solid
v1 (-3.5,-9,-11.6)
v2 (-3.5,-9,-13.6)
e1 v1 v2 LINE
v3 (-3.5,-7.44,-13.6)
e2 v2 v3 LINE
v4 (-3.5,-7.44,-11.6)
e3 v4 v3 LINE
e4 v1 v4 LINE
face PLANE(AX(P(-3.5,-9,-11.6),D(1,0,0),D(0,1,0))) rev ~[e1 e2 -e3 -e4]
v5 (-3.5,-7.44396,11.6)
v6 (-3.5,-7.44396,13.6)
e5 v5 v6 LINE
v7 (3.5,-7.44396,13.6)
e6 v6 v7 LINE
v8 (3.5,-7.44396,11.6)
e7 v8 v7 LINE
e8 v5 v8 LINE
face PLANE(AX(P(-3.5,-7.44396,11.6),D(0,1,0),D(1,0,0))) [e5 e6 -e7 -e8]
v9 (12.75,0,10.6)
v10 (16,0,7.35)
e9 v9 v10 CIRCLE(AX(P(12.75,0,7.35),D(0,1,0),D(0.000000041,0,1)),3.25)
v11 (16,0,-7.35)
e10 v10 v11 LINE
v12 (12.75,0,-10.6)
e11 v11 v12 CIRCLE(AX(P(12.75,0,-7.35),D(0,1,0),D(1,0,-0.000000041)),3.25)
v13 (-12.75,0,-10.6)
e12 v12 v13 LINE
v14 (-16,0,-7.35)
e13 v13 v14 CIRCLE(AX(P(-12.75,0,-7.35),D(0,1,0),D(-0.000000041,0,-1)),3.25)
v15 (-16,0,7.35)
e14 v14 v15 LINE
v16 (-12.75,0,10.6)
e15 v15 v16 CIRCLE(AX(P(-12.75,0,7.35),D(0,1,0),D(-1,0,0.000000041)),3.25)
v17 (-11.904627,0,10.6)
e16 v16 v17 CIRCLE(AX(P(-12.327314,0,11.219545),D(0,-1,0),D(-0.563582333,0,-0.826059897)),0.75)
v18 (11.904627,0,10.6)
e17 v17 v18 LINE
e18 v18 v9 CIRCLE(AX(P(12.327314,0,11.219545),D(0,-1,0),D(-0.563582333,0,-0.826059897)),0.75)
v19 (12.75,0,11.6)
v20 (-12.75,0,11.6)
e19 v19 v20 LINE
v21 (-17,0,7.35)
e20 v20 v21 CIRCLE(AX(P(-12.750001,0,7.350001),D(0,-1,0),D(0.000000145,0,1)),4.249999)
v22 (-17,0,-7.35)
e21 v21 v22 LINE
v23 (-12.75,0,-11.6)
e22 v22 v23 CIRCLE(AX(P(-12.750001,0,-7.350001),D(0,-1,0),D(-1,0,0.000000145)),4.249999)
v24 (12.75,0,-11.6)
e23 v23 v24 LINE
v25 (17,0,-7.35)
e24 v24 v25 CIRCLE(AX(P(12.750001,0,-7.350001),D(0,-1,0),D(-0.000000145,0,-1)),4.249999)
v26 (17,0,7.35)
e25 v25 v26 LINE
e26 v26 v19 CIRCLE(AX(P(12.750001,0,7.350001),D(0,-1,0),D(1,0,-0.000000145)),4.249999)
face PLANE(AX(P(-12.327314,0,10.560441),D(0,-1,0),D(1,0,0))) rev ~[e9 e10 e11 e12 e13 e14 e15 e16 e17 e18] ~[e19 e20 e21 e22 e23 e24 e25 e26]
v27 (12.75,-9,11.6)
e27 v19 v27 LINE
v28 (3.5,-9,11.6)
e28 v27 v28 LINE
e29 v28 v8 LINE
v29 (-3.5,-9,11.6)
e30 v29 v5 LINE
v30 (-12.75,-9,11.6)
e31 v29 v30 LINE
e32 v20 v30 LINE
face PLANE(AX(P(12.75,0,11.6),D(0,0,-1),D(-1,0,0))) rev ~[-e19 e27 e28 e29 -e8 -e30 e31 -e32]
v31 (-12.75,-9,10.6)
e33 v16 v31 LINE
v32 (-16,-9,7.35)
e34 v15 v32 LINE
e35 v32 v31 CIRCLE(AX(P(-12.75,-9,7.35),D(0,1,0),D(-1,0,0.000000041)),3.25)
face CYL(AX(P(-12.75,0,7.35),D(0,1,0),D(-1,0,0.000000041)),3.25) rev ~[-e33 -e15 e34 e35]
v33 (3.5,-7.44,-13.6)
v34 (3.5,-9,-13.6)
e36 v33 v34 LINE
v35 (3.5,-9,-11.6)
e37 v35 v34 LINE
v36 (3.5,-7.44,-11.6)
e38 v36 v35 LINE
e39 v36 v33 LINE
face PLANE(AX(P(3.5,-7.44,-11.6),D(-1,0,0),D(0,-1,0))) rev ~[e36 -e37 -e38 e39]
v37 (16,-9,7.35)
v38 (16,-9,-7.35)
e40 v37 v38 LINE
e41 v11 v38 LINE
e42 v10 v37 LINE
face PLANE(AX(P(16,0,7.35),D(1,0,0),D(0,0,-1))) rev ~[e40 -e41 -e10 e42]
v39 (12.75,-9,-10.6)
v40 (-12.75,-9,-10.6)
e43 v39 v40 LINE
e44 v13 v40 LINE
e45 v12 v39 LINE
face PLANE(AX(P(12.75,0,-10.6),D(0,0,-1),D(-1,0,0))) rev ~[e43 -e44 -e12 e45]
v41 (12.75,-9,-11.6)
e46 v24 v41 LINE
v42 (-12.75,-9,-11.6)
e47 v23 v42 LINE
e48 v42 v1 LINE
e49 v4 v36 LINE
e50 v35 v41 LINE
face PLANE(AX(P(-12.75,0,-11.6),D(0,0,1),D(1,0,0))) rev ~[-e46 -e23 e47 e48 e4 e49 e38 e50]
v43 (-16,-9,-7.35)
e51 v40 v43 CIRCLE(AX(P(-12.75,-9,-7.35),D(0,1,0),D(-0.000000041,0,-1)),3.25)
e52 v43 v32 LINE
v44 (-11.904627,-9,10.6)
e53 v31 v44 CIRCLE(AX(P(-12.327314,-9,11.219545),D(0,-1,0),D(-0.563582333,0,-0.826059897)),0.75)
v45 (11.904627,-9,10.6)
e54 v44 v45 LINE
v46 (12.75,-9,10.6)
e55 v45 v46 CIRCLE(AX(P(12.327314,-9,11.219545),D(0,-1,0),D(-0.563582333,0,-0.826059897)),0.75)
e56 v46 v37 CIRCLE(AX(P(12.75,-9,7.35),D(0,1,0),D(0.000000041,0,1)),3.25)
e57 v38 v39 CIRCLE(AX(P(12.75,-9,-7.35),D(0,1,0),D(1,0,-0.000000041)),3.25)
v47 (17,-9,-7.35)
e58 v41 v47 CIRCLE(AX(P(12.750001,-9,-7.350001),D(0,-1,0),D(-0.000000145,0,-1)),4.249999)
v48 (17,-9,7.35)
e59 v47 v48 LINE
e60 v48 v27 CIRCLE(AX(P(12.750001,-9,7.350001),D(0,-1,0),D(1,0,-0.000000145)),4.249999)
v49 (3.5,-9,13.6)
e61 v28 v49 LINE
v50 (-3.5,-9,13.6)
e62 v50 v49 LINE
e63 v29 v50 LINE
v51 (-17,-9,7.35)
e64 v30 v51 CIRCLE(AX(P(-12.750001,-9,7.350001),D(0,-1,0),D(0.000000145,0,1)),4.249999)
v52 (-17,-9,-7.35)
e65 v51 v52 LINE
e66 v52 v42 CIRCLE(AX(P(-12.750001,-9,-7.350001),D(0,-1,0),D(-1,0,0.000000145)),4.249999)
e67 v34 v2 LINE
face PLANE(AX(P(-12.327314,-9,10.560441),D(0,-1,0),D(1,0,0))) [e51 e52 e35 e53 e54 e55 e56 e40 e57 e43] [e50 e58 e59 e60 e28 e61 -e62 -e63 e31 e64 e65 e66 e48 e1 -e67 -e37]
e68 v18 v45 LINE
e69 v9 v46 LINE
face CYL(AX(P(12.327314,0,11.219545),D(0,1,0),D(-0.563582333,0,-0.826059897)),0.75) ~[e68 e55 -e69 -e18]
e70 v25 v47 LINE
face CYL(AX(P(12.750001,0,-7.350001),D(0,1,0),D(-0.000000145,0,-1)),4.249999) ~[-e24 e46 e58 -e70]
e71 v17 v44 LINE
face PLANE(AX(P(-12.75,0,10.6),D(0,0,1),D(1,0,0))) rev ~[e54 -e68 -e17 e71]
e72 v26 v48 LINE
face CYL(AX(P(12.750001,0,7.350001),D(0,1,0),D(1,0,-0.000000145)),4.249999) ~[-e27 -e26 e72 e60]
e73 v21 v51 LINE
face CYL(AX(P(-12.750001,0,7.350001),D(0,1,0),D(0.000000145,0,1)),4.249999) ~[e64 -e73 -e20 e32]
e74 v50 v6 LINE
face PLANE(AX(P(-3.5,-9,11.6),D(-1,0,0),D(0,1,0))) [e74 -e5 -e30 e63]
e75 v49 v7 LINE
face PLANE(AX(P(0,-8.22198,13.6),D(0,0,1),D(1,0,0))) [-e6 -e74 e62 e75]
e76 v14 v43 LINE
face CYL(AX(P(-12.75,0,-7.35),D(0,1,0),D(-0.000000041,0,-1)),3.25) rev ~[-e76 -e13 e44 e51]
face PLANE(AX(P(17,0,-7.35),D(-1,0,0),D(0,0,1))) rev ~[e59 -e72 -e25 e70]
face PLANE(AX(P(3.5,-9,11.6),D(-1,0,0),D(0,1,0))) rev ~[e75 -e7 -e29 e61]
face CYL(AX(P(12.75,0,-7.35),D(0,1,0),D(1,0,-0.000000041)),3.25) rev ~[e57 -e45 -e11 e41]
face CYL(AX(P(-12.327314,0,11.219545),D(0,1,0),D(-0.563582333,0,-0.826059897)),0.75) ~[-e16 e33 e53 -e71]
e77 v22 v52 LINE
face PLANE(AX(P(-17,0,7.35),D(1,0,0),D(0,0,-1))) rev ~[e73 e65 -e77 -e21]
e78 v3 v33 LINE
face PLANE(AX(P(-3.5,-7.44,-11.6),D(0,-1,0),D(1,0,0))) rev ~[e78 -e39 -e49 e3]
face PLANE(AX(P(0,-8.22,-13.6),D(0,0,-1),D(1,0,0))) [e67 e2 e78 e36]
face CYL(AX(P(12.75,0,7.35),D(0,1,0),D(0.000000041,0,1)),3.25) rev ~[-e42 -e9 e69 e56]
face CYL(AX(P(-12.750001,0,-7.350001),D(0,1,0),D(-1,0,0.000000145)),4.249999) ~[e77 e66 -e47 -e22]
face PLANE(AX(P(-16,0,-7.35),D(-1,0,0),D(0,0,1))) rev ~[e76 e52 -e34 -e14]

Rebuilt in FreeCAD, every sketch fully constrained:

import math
import FreeCAD as App
import Part
import Sketcher

V = App.Vector
Q = App.Units.Quantity


def add_polygon(sketch, points):
    """Adds a closed chain of lines whose ends are joined by coincident constraints."""
    first, n = sketch.GeometryCount, len(points)
    for a, b in zip(points, points[1:] + points[:1]):
        sketch.addGeometry(Part.LineSegment(App.Vector(*a, 0), App.Vector(*b, 0)), False)
    for i in range(n):
        sketch.addConstraint(Sketcher.Constraint("Coincident", first + i, 2, first + (i + 1) % n, 1))

doc = App.newDocument("Part")
body = doc.addObject("PartDesign::Body", "Body")

# Sketch on XZ plane
sketch1 = body.newObject("Sketcher::SketchObject", "Sketch")
sketch1.AttachmentSupport = (doc.getObject("XZ_Plane"), [""])
sketch1.MapMode = "FlatFace"
sketch1.addGeometry([
    Part.LineSegment(V(17, -7.35, 0), V(17, 7.35, 0)),  # 0
    Part.ArcOfCircle(Part.Circle(V(12.750001, 7.350001, 0), V(0, 0, 1), 4.249999), math.radians(-0.000008), math.radians(90.000008)),  # 1
    Part.LineSegment(V(12.75, 11.6, 0), V(-12.75, 11.6, 0)),  # 2
    Part.ArcOfCircle(Part.Circle(V(-12.750001, 7.350001, 0), V(0, 0, 1), 4.249999), math.radians(89.999992), math.radians(180.000008)),  # 3
    Part.LineSegment(V(-17, 7.35, 0), V(-17, -7.35, 0)),  # 4
    Part.ArcOfCircle(Part.Circle(V(-12.750001, -7.350001, 0), V(0, 0, 1), 4.249999), math.radians(179.999992), math.radians(270.000008)),  # 5
    Part.LineSegment(V(-12.75, -11.6, 0), V(12.75, -11.6, 0)),  # 6
    Part.ArcOfCircle(Part.Circle(V(12.750001, -7.350001, 0), V(0, 0, 1), 4.249999), math.radians(-90.000008), math.radians(0.000008)),  # 7
    Part.LineSegment(V(16, 7.35, 0), V(16, -7.35, 0)),  # 8
    Part.ArcOfCircle(Part.Circle(V(12.75, -7.35, 0), V(0, 0, 1), 3.25), math.radians(-89.999998), math.radians(-0.000002)),  # 9
    Part.LineSegment(V(12.75, -10.6, 0), V(-12.75, -10.6, 0)),  # 10
    Part.ArcOfCircle(Part.Circle(V(-12.75, -7.35, 0), V(0, 0, 1), 3.25), math.radians(-179.999998), math.radians(-90.000002)),  # 11
    Part.LineSegment(V(-16, -7.35, 0), V(-16, 7.35, 0)),  # 12
    Part.ArcOfCircle(Part.Circle(V(-12.75, 7.35, 0), V(0, 0, 1), 3.25), math.radians(90.000002), math.radians(179.999998)),  # 13
    Part.LineSegment(V(-12.75, 10.6, 0), V(12.75, 10.6, 0)),  # 14
    Part.ArcOfCircle(Part.Circle(V(12.75, 7.35, 0), V(0, 0, 1), 3.25), math.radians(0.000002), math.radians(89.999998)),  # 15
], False)
sketch1.addConstraint([
    Sketcher.Constraint("Tangent", 0, 2, 1, 1),
    Sketcher.Constraint("Tangent", 1, 2, 2, 1),
    Sketcher.Constraint("Tangent", 2, 2, 3, 1),
    Sketcher.Constraint("Tangent", 3, 2, 4, 1),
    Sketcher.Constraint("Tangent", 4, 2, 5, 1),
    Sketcher.Constraint("Tangent", 5, 2, 6, 1),
    Sketcher.Constraint("Tangent", 6, 2, 7, 1),
    Sketcher.Constraint("Tangent", 7, 2, 0, 1),
    Sketcher.Constraint("Tangent", 8, 2, 9, 2),
    Sketcher.Constraint("Tangent", 9, 1, 10, 1),
    Sketcher.Constraint("Tangent", 10, 2, 11, 2),
    Sketcher.Constraint("Tangent", 11, 1, 12, 1),
    Sketcher.Constraint("Tangent", 12, 2, 13, 2),
    Sketcher.Constraint("Tangent", 13, 1, 14, 1),
    Sketcher.Constraint("Tangent", 14, 2, 15, 2),
    Sketcher.Constraint("Tangent", 15, 1, 8, 1),
    Sketcher.Constraint("Vertical", 0),
    Sketcher.Constraint("Horizontal", 2),
    Sketcher.Constraint("Vertical", 4),
    Sketcher.Constraint("Horizontal", 6),
    Sketcher.Constraint("Vertical", 8),
    Sketcher.Constraint("Horizontal", 10),
    Sketcher.Constraint("Vertical", 12),
    Sketcher.Constraint("Horizontal", 14),
    Sketcher.Constraint("Coincident", 9, 3, 7, 3),
    Sketcher.Constraint("Coincident", 11, 3, 5, 3),
    Sketcher.Constraint("Coincident", 13, 3, 3, 3),
    Sketcher.Constraint("Equal", 1, 3),
    Sketcher.Constraint("Equal", 3, 5),
    Sketcher.Constraint("Equal", 5, 7),
    Sketcher.Constraint("Equal", 13, 15),
    Sketcher.Constraint("Symmetric", 1, 3, 5, 3, -1, 1),
    Sketcher.Constraint("Radius", 1, Q("4.249999 mm")),
    Sketcher.Constraint("Radius", 9, Q("3.25 mm")),
    Sketcher.Constraint("DistanceX", 2, 2, 2, 1, Q("25.5 mm")),
    Sketcher.Constraint("DistanceY", 0, 1, 0, 2, Q("14.7 mm")),
])
pad1 = body.newObject("PartDesign::Pad", "Pad")
pad1.Profile = sketch1
pad1.Length = 9

# Sketch on XY plane
sketch2 = body.newObject("Sketcher::SketchObject", "Sketch001")
sketch2.AttachmentSupport = (doc.getObject("XY_Plane"), [""])
sketch2.MapMode = "FlatFace"
sketch2.AttachmentOffset = App.Placement(V(0, 0, 11.6), App.Rotation())
add_polygon(sketch2, [(-3.5, -7.44396), (-3.5, -9), (3.5, -9), (3.5, -7.44396)])  # lines 0-3
sketch2.addConstraint([
    Sketcher.Constraint("Vertical", 0),
    Sketcher.Constraint("Horizontal", 1),
    Sketcher.Constraint("Vertical", 2),
    Sketcher.Constraint("Horizontal", 3),
    Sketcher.Constraint("DistanceX", 1, 1, 1, 2, Q("7 mm")),
    Sketcher.Constraint("DistanceY", 0, 2, -1, 1, Q("9 mm")),
    Sketcher.Constraint("DistanceX", 0, 2, -1, 1, Q("3.5 mm")),
    Sketcher.Constraint("DistanceY", 0, 2, 0, 1, Q("1.55604 mm")),
])
pad2 = body.newObject("PartDesign::Pad", "Pad001")
pad2.Profile = sketch2
pad2.Length = 2

# Sketch on XZ plane
sketch3 = body.newObject("Sketcher::SketchObject", "Sketch002")
sketch3.AttachmentSupport = (doc.getObject("XZ_Plane"), [""])
sketch3.MapMode = "FlatFace"
sketch3.addGeometry([
    Part.LineSegment(V(-11.904627, 10.6, 0), V(-12.75, 10.6, 0)),
    Part.ArcOfCircle(Part.Circle(V(-12.327314, 11.219545, 0), V(0, 0, 1), 0.75), math.radians(-124.303904), math.radians(-55.696096)),
    Part.ArcOfCircle(Part.Circle(V(12.327314, 11.219545, 0), V(0, 0, 1), 0.75), math.radians(-124.303904), math.radians(-55.696096)),
    Part.LineSegment(V(12.75, 10.6, 0), V(11.904627, 10.6, 0)),
], False)
sketch3.addConstraint([
    Sketcher.Constraint("Coincident", 0, 1, 1, 2),
    Sketcher.Constraint("Coincident", 1, 1, 0, 2),
    Sketcher.Constraint("Coincident", 2, 1, 3, 2),
    Sketcher.Constraint("Coincident", 3, 1, 2, 2),
    Sketcher.Constraint("Horizontal", 0),
    Sketcher.Constraint("Horizontal", 3),
    Sketcher.Constraint("Equal", 1, 2),
    Sketcher.Constraint("Symmetric", 1, 3, 2, 3, -2),
    Sketcher.Constraint("Horizontal", 1, 1, 2, 1),
    Sketcher.Constraint("Radius", 1, Q("0.75 mm")),
    Sketcher.Constraint("DistanceY", -1, 1, 0, 1, Q("10.6 mm")),
    Sketcher.Constraint("DistanceX", 1, 1, 3, 1, Q("25.5 mm")),
    Sketcher.Constraint("DistanceX", 0, 2, 0, 1, Q("0.845373 mm")),
])
pad3 = body.newObject("PartDesign::Pad", "Pad002")
pad3.Profile = sketch3
pad3.Length = 9

# Sketch on XZ plane
sketch4 = body.newObject("Sketcher::SketchObject", "Sketch003")
sketch4.AttachmentSupport = (doc.getObject("XZ_Plane"), [""])
sketch4.MapMode = "FlatFace"
sketch4.addGeometry([
    Part.LineSegment(V(-11.904627, 10.6, 0), V(-12.75, 10.6, 0)),
    Part.ArcOfCircle(Part.Circle(V(-12.327314, 11.219545, 0), V(0, 0, 1), 0.75), math.radians(-124.303904), math.radians(-55.696096)),
    Part.ArcOfCircle(Part.Circle(V(12.327314, 11.219545, 0), V(0, 0, 1), 0.75), math.radians(-124.303904), math.radians(-55.696096)),
    Part.LineSegment(V(12.75, 10.6, 0), V(11.904627, 10.6, 0)),
], False)
sketch4.addConstraint([
    Sketcher.Constraint("Coincident", 0, 1, 1, 2),
    Sketcher.Constraint("Coincident", 1, 1, 0, 2),
    Sketcher.Constraint("Coincident", 2, 1, 3, 2),
    Sketcher.Constraint("Coincident", 3, 1, 2, 2),
    Sketcher.Constraint("Horizontal", 0),
    Sketcher.Constraint("Horizontal", 3),
    Sketcher.Constraint("Equal", 1, 2),
    Sketcher.Constraint("Symmetric", 1, 3, 2, 3, -2),
    Sketcher.Constraint("Horizontal", 1, 1, 2, 1),
    Sketcher.Constraint("Radius", 1, Q("0.75 mm")),
    Sketcher.Constraint("DistanceY", -1, 1, 0, 1, Q("10.6 mm")),
    Sketcher.Constraint("DistanceX", 1, 1, 3, 1, Q("25.5 mm")),
    Sketcher.Constraint("DistanceX", 0, 2, 0, 1, Q("0.845373 mm")),
])
pad4 = body.newObject("PartDesign::Pad", "Pad003")
pad4.Profile = sketch4
pad4.Length = 9

# Sketch on XY plane
sketch5 = body.newObject("Sketcher::SketchObject", "Sketch004")
sketch5.AttachmentSupport = (doc.getObject("XY_Plane"), [""])
sketch5.MapMode = "FlatFace"
sketch5.AttachmentOffset = App.Placement(V(0, 0, -11.6), App.Rotation())
add_polygon(sketch5, [(3.5, -9), (-3.5, -9), (-3.5, -7.44), (3.5, -7.44)])  # lines 0-3
sketch5.addConstraint([
    Sketcher.Constraint("Horizontal", 0),
    Sketcher.Constraint("Vertical", 1),
    Sketcher.Constraint("Horizontal", 2),
    Sketcher.Constraint("Vertical", 3),
    Sketcher.Constraint("DistanceX", 0, 2, 0, 1, Q("7 mm")),
    Sketcher.Constraint("DistanceY", 0, 2, -1, 1, Q("9 mm")),
    Sketcher.Constraint("DistanceY", 1, 1, 1, 2, Q("1.56 mm")),
    Sketcher.Constraint("DistanceX", 0, 2, -1, 1, Q("3.5 mm")),
])
pad5 = body.newObject("PartDesign::Pad", "Pad004")
pad5.Profile = sketch5
pad5.Length = 2
pad5.Reversed = True

doc.recompute()
